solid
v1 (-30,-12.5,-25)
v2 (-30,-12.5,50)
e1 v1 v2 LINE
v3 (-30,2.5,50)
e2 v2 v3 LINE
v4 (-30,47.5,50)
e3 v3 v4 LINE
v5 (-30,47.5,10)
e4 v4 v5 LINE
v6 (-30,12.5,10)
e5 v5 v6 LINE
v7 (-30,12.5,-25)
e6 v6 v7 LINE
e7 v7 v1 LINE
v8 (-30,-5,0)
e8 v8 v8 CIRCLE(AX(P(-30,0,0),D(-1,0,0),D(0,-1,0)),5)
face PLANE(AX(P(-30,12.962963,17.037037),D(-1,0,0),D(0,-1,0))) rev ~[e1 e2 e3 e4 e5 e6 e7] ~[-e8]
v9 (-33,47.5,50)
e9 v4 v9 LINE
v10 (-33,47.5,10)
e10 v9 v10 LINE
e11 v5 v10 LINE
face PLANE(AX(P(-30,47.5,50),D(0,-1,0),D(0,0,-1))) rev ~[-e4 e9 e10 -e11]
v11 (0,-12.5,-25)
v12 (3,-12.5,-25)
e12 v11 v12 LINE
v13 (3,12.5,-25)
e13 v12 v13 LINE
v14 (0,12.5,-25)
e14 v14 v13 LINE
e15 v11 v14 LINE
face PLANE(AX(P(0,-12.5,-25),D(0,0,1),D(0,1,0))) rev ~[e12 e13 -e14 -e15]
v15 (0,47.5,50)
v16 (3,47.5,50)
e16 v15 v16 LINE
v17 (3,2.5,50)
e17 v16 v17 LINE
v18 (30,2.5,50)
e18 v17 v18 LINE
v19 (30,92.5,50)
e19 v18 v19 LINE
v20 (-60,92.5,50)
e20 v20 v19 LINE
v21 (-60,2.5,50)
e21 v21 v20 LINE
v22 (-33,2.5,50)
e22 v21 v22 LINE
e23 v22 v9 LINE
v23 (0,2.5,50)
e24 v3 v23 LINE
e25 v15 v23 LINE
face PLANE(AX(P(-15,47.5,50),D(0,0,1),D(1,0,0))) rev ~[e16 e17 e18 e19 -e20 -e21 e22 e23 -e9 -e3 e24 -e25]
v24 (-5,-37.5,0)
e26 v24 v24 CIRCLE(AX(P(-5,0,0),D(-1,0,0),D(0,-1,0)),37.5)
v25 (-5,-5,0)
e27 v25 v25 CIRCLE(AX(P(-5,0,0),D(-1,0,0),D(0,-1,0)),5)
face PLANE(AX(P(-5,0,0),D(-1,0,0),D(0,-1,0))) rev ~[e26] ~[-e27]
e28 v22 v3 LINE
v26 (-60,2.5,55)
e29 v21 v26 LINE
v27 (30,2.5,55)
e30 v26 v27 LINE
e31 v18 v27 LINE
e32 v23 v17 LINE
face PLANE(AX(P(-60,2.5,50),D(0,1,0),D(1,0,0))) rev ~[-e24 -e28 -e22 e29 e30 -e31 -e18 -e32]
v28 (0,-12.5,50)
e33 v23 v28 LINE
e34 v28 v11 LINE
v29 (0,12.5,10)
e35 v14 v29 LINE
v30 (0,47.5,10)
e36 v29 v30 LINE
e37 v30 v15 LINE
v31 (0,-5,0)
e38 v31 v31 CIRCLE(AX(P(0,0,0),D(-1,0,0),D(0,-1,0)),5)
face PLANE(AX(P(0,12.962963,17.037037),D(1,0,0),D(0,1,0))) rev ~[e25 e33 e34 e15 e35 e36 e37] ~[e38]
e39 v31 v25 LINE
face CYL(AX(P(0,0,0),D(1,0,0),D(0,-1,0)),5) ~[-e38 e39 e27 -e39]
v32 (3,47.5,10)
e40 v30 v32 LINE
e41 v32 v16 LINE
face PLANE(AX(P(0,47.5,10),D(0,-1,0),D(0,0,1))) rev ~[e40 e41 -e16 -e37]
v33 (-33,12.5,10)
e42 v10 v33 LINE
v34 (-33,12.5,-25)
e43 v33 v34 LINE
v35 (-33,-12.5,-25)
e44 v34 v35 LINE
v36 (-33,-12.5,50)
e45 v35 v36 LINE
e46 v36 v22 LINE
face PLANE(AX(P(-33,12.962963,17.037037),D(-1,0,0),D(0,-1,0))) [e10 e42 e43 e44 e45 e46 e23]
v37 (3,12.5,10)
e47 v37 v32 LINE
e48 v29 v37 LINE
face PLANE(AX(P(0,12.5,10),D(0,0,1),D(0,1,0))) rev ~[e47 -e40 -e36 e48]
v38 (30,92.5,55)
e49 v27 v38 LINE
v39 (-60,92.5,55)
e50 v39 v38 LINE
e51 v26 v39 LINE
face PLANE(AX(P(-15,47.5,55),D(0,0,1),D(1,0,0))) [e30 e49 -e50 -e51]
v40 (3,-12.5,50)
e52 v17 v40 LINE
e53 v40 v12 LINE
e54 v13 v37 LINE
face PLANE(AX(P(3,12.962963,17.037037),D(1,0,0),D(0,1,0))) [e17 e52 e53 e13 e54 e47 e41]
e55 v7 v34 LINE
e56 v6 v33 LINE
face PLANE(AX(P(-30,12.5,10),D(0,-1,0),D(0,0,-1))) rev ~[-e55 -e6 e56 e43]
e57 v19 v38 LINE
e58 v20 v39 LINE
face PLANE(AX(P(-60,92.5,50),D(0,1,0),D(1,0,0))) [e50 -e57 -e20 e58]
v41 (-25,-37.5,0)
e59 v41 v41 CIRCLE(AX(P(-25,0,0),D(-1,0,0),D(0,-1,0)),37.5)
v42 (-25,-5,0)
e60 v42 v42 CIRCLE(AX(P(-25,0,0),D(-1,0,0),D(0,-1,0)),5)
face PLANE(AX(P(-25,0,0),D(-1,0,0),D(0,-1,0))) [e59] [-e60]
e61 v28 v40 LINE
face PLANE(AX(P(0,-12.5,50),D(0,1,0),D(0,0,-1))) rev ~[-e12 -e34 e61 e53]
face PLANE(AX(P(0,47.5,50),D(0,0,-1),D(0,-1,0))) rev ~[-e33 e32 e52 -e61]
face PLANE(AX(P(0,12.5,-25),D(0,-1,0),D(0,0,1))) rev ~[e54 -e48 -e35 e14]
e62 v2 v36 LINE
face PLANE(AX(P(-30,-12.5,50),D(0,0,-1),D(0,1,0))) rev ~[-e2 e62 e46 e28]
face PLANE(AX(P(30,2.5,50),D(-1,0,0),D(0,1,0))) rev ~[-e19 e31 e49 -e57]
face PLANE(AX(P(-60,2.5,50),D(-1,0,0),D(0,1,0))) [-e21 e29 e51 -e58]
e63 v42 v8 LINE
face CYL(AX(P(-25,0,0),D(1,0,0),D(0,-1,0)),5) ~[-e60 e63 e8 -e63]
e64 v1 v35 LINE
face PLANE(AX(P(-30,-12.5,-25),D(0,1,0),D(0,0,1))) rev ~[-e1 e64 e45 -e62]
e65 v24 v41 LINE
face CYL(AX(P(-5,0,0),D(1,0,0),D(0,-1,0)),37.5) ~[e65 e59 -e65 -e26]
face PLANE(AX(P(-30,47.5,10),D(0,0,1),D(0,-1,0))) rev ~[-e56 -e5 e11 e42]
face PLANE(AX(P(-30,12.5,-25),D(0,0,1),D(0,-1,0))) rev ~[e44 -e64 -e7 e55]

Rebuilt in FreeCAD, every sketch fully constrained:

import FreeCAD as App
import Part
import Sketcher

doc = App.newDocument("Part")
body = doc.addObject("PartDesign::Body", "Body")

# Sketch on YZ plane
sketch1 = body.newObject("Sketcher::SketchObject", "Sketch")
sketch1.AttachmentSupport = (doc.getObject("YZ_Plane"), [""])
sketch1.MapMode = "FlatFace"
sketch1.addGeometry(Part.LineSegment(App.Vector(-12.5, 50, 0), App.Vector(-12.5, -25, 0)), False)
sketch1.addGeometry(Part.LineSegment(App.Vector(-12.5, -25, 0), App.Vector(12.5, -25, 0)), False)
sketch1.addGeometry(Part.LineSegment(App.Vector(12.5, -25, 0), App.Vector(12.5, 10, 0)), False)
sketch1.addGeometry(Part.LineSegment(App.Vector(12.5, 10, 0), App.Vector(47.5, 10, 0)), False)
sketch1.addGeometry(Part.LineSegment(App.Vector(47.5, 10, 0), App.Vector(47.5, 50, 0)), False)
sketch1.addGeometry(Part.LineSegment(App.Vector(47.5, 50, 0), App.Vector(-12.5, 50, 0)), False)
sketch1.addConstraint(Sketcher.Constraint("Coincident", 0, 2, 1, 1))
sketch1.addConstraint(Sketcher.Constraint("Coincident", 1, 2, 2, 1))
sketch1.addConstraint(Sketcher.Constraint("Coincident", 2, 2, 3, 1))
sketch1.addConstraint(Sketcher.Constraint("Coincident", 3, 2, 4, 1))
sketch1.addConstraint(Sketcher.Constraint("Coincident", 4, 2, 5, 1))
sketch1.addConstraint(Sketcher.Constraint("Coincident", 5, 2, 0, 1))
sketch1.addConstraint(Sketcher.Constraint("Vertical", 0))
sketch1.addConstraint(Sketcher.Constraint("Horizontal", 1))
sketch1.addConstraint(Sketcher.Constraint("Vertical", 2))
sketch1.addConstraint(Sketcher.Constraint("Horizontal", 3))
sketch1.addConstraint(Sketcher.Constraint("Vertical", 4))
sketch1.addConstraint(Sketcher.Constraint("Horizontal", 5))
sketch1.addConstraint(Sketcher.Constraint("Equal", 3, 2))
sketch1.addConstraint(Sketcher.Constraint("DistanceX", 1, 1, 1, 2, 25.0))
sketch1.addConstraint(Sketcher.Constraint("DistanceX", 3, 1, 3, 2, 35.0))
sketch1.addConstraint(Sketcher.Constraint("DistanceY", 0, 2, 0, 1, 75.0))
sketch1.addConstraint(Sketcher.Constraint("DistanceY", 0, 2, -1, 1, 25.0))
sketch1.addConstraint(Sketcher.Constraint("DistanceX", 0, 2, -1, 1, 12.5))
pad1 = body.newObject("PartDesign::Pad", "Pad")
pad1.Profile = sketch1
pad1.Length = 3

# Sketch on YZ plane
sketch2 = body.newObject("Sketcher::SketchObject", "Sketch001")
sketch2.AttachmentSupport = (doc.getObject("YZ_Plane"), [""])
sketch2.MapMode = "FlatFace"
sketch2.addGeometry(Part.Circle(App.Vector(0, 0, 0), App.Vector(0, 0, 1), 5), False)
sketch2.addConstraint(Sketcher.Constraint("Coincident", 0, 3, -1, 1))
sketch2.addConstraint(Sketcher.Constraint("Diameter", 0, 10.0))
pad2 = body.newObject("PartDesign::Pad", "Pad001")
pad2.Profile = sketch2
pad2.Length = 5
pad2.Reversed = True

# Sketch on YZ plane
sketch3 = body.newObject("Sketcher::SketchObject", "Sketch002")
sketch3.AttachmentSupport = (doc.getObject("YZ_Plane"), [""])
sketch3.MapMode = "FlatFace"
sketch3.AttachmentOffset = App.Placement(App.Vector(0, 0, -5), App.Rotation())
sketch3.addGeometry(Part.Circle(App.Vector(0, 0, 0), App.Vector(0, 0, 1), 37.5), False)
sketch3.addConstraint(Sketcher.Constraint("Coincident", 0, 3, -1, 1))
sketch3.addConstraint(Sketcher.Constraint("Diameter", 0, 75.0))
pad3 = body.newObject("PartDesign::Pad", "Pad002")
pad3.Profile = sketch3
pad3.Length = 20
pad3.Reversed = True

# Sketch on YZ plane
sketch4 = body.newObject("Sketcher::SketchObject", "Sketch003")
sketch4.AttachmentSupport = (doc.getObject("YZ_Plane"), [""])
sketch4.MapMode = "FlatFace"
sketch4.AttachmentOffset = App.Placement(App.Vector(0, 0, -25), App.Rotation())
sketch4.addGeometry(Part.Circle(App.Vector(0, 0, 0), App.Vector(0, 0, 1), 5), False)
sketch4.addConstraint(Sketcher.Constraint("Coincident", 0, 3, -1, 1))
sketch4.addConstraint(Sketcher.Constraint("Diameter", 0, 10.0))
pad4 = body.newObject("PartDesign::Pad", "Pad003")
pad4.Profile = sketch4
pad4.Length = 5
pad4.Reversed = True

# Sketch on YZ plane
sketch5 = body.newObject("Sketcher::SketchObject", "Sketch004")
sketch5.AttachmentSupport = (doc.getObject("YZ_Plane"), [""])
sketch5.MapMode = "FlatFace"
sketch5.AttachmentOffset = App.Placement(App.Vector(0, 0, -30), App.Rotation())
sketch5.addGeometry(Part.LineSegment(App.Vector(-12.5, 50, 0), App.Vector(47.5, 50, 0)), False)
sketch5.addGeometry(Part.LineSegment(App.Vector(47.5, 50, 0), App.Vector(47.5, 10, 0)), False)
sketch5.addGeometry(Part.LineSegment(App.Vector(47.5, 10, 0), App.Vector(12.5, 10, 0)), False)
sketch5.addGeometry(Part.LineSegment(App.Vector(12.5, 10, 0), App.Vector(12.5, -25, 0)), False)
sketch5.addGeometry(Part.LineSegment(App.Vector(12.5, -25, 0), App.Vector(-12.5, -25, 0)), False)
sketch5.addGeometry(Part.LineSegment(App.Vector(-12.5, -25, 0), App.Vector(-12.5, 50, 0)), False)
sketch5.addConstraint(Sketcher.Constraint("Coincident", 0, 2, 1, 1))
sketch5.addConstraint(Sketcher.Constraint("Coincident", 1, 2, 2, 1))
sketch5.addConstraint(Sketcher.Constraint("Coincident", 2, 2, 3, 1))
sketch5.addConstraint(Sketcher.Constraint("Coincident", 3, 2, 4, 1))
sketch5.addConstraint(Sketcher.Constraint("Coincident", 4, 2, 5, 1))
sketch5.addConstraint(Sketcher.Constraint("Coincident", 5, 2, 0, 1))
sketch5.addConstraint(Sketcher.Constraint("Horizontal", 0))
sketch5.addConstraint(Sketcher.Constraint("Vertical", 1))
sketch5.addConstraint(Sketcher.Constraint("Horizontal", 2))
sketch5.addConstraint(Sketcher.Constraint("Vertical", 3))
sketch5.addConstraint(Sketcher.Constraint("Horizontal", 4))
sketch5.addConstraint(Sketcher.Constraint("Vertical", 5))
sketch5.addConstraint(Sketcher.Constraint("Equal", 2, 3))
sketch5.addConstraint(Sketcher.Constraint("DistanceX", 0, 1, 0, 2, 60.0))
sketch5.addConstraint(Sketcher.Constraint("DistanceX", 2, 2, 2, 1, 35.0))
sketch5.addConstraint(Sketcher.Constraint("DistanceY", 1, 2, 1, 1, 40.0))
sketch5.addConstraint(Sketcher.Constraint("DistanceY", -1, 1, 0, 2, 50.0))
sketch5.addConstraint(Sketcher.Constraint("DistanceX", -1, 1, 0, 2, 47.5))
pad5 = body.newObject("PartDesign::Pad", "Pad004")
pad5.Profile = sketch5
pad5.Length = 3
pad5.Reversed = True

# Sketch on XY plane
sketch6 = body.newObject("Sketcher::SketchObject", "Sketch005")
sketch6.AttachmentSupport = (doc.getObject("XY_Plane"), [""])
sketch6.MapMode = "FlatFace"
sketch6.AttachmentOffset = App.Placement(App.Vector(0, 0, 50), App.Rotation())
sketch6.addGeometry(Part.LineSegment(App.Vector(-60, 92.5, 0), App.Vector(-60, 2.5, 0)), False)
sketch6.addGeometry(Part.LineSegment(App.Vector(-60, 2.5, 0), App.Vector(30, 2.5, 0)), False)
sketch6.addGeometry(Part.LineSegment(App.Vector(30, 2.5, 0), App.Vector(30, 92.5, 0)), False)
sketch6.addGeometry(Part.LineSegment(App.Vector(30, 92.5, 0), App.Vector(-60, 92.5, 0)), False)
sketch6.addConstraint(Sketcher.Constraint("Coincident", 0, 2, 1, 1))
sketch6.addConstraint(Sketcher.Constraint("Coincident", 1, 2, 2, 1))
sketch6.addConstraint(Sketcher.Constraint("Coincident", 2, 2, 3, 1))
sketch6.addConstraint(Sketcher.Constraint("Coincident", 3, 2, 0, 1))
sketch6.addConstraint(Sketcher.Constraint("Vertical", 0))
sketch6.addConstraint(Sketcher.Constraint("Horizontal", 1))
sketch6.addConstraint(Sketcher.Constraint("Vertical", 2))
sketch6.addConstraint(Sketcher.Constraint("Horizontal", 3))
sketch6.addConstraint(Sketcher.Constraint("Equal", 3, 0))
sketch6.addConstraint(Sketcher.Constraint("DistanceX", 1, 1, 1, 2, 90.0))
sketch6.addConstraint(Sketcher.Constraint("DistanceX", 0, 2, -1, 1, 60.0))
sketch6.addConstraint(Sketcher.Constraint("DistanceY", -1, 1, 0, 2, 2.5))
pad6 = body.newObject("PartDesign::Pad", "Pad005")
pad6.Profile = sketch6
pad6.Length = 5

doc.recompute()
